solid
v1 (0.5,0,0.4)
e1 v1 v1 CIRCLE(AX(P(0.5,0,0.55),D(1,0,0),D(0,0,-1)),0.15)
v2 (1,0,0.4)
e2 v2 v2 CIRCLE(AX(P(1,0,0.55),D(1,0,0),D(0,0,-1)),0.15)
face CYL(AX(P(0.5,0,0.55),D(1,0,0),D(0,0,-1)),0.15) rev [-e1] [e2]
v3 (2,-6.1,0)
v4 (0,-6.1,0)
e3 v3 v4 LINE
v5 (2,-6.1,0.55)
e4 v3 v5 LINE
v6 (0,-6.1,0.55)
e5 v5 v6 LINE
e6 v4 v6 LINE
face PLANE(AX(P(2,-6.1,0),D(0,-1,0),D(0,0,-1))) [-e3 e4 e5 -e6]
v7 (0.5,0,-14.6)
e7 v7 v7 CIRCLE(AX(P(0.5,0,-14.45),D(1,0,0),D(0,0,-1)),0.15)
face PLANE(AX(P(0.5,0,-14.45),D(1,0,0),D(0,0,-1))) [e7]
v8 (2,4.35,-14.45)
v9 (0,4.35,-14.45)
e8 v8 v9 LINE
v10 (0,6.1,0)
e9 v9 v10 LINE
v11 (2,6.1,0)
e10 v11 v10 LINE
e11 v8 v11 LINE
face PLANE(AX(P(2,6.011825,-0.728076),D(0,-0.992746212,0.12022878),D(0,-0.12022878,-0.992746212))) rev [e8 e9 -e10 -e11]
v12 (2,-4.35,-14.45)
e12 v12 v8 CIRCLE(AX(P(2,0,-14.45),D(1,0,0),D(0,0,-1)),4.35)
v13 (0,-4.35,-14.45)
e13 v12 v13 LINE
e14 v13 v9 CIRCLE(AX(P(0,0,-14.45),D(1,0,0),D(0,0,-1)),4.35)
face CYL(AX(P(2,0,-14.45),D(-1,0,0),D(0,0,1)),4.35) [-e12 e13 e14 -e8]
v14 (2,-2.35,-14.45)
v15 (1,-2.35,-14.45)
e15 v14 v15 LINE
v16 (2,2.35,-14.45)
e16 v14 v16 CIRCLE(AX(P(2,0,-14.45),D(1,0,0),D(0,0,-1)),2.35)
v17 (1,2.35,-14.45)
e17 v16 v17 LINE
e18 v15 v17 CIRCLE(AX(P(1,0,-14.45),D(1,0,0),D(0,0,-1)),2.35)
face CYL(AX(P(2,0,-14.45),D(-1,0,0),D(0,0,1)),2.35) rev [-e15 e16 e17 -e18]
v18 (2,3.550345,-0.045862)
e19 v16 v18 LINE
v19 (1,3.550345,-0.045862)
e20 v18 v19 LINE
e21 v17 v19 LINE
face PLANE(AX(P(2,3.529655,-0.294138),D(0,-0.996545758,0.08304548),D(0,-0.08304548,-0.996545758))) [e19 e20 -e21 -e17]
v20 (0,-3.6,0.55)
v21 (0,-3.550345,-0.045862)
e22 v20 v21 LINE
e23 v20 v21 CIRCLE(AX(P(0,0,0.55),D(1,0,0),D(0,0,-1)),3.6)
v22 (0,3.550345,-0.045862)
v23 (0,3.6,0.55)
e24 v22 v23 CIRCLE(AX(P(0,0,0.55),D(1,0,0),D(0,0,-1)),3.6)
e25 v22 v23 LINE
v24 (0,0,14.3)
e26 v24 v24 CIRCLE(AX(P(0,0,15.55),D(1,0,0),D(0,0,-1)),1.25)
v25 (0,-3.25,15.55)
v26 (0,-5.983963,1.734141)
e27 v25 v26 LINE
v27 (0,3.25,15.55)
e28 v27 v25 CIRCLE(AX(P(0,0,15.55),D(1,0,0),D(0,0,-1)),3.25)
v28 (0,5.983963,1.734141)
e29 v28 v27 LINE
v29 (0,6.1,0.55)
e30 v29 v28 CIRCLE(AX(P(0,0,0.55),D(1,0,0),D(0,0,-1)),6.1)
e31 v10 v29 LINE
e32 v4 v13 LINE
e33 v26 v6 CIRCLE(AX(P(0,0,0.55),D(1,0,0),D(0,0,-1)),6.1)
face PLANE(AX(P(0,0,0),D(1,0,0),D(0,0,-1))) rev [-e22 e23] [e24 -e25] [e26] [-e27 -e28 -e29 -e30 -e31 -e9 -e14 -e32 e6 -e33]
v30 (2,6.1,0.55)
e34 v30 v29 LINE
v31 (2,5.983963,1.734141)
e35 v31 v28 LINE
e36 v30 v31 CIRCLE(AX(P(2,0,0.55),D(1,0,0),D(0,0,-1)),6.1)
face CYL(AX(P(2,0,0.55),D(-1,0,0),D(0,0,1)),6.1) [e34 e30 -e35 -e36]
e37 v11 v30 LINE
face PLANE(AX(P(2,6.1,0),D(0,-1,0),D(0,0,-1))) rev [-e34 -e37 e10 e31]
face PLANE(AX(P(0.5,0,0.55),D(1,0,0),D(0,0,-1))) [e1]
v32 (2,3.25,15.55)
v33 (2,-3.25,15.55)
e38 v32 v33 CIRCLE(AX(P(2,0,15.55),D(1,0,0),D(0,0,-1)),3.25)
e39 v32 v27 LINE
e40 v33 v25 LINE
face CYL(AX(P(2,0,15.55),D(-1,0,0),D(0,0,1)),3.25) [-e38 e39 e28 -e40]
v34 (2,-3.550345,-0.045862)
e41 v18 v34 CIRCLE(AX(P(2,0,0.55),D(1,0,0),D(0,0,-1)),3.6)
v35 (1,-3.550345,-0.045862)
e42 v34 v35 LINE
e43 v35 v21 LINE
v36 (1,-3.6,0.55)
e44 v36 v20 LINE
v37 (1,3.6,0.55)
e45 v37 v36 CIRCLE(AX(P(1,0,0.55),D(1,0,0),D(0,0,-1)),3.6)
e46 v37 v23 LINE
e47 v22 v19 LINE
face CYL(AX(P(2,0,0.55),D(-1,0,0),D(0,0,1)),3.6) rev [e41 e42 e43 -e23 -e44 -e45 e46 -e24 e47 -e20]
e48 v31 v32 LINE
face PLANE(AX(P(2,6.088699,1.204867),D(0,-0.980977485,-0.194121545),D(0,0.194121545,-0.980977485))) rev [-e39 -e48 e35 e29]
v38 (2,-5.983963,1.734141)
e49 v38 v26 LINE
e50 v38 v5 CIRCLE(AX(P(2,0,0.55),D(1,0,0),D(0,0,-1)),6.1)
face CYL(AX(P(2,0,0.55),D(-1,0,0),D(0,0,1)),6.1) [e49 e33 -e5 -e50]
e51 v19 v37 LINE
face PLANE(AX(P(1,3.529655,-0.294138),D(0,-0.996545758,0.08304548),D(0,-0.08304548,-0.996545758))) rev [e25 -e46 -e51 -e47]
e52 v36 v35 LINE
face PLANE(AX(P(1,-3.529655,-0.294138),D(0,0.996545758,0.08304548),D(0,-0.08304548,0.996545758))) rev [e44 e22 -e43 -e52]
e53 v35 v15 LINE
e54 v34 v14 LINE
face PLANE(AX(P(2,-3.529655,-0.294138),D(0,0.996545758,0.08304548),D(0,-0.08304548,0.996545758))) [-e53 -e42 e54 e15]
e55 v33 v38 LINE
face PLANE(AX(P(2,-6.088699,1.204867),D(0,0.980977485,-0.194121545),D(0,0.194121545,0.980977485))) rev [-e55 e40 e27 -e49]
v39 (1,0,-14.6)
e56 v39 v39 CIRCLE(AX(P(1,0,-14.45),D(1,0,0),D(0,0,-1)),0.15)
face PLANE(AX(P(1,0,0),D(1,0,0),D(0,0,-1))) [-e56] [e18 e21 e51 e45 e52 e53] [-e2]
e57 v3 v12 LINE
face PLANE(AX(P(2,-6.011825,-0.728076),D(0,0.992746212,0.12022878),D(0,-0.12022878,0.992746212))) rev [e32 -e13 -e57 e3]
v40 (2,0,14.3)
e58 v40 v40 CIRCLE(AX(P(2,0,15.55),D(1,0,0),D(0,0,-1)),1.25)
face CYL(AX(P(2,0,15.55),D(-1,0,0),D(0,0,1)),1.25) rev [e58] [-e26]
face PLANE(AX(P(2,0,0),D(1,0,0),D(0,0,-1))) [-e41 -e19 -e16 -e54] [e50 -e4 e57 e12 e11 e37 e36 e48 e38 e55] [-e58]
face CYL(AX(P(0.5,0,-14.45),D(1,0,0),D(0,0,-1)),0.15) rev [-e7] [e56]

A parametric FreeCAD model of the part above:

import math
import FreeCAD as App
import Part
import Sketcher

V = App.Vector
Q = App.Units.Quantity

doc = App.newDocument("Part")
body = doc.addObject("PartDesign::Body", "Body")

# Sketch on YZ plane
sketch1 = body.newObject("Sketcher::SketchObject", "Sketch")
sketch1.AttachmentSupport = (doc.getObject("YZ_Plane"), [""])
sketch1.MapMode = "FlatFace"
sketch1.addGeometry([
    Part.ArcOfCircle(Part.Circle(V(0, -14.5, 0), V(0, 0, 1), 4.3), math.radians(180), math.radians(270)),  # 0
    Part.ArcOfCircle(Part.Circle(V(0, -14.5, 0), V(0, 0, 1), 4.3), math.radians(-90), math.radians(0)),  # 1
    Part.LineSegment(V(4.3, -14.4, 0), V(6.1, 0, 0)),  # 2
    Part.LineSegment(V(6.1, 0, 0), V(6.1, 0.6, 0)),  # 3
    Part.ArcOfCircle(Part.Circle(V(0, 0.6, 0), V(0, 0, 1), 6.1), math.radians(0), math.radians(11.19)),  # 4
    Part.LineSegment(V(6, 1.7, 0), V(3.2, 15.6, 0)),  # 5
    Part.ArcOfCircle(Part.Circle(V(0, 15.6, 0), V(0, 0, 1), 3.2), math.radians(0), math.radians(90)),  # 6
    Part.ArcOfCircle(Part.Circle(V(0, 15.6, 0), V(0, 0, 1), 3.2), math.radians(90), math.radians(180)),  # 7
    Part.LineSegment(V(-3.2, 15.6, 0), V(-6, 1.7, 0)),  # 8
    Part.ArcOfCircle(Part.Circle(V(0, 0.6, 0), V(0, 0, 1), 6.1), math.radians(168.81), math.radians(180)),  # 9
    Part.LineSegment(V(-6.1, 0.6, 0), V(-6.1, 0, 0)),  # 10
    Part.LineSegment(V(-6.1, 0, 0), V(-4.3, -14.4, 0)),  # 11
    Part.ArcOfCircle(Part.Circle(V(0, 0.5, 0), V(0, 0, 1), 3.6), math.radians(-9.53), math.radians(0)),  # 12
    Part.LineSegment(V(3.6, 0, 0), V(2.4, -14.4, 0)),  # 13
    Part.ArcOfCircle(Part.Circle(V(0, -14.4, 0), V(0, 0, 1), 2.4), math.radians(180), math.radians(360)),  # 14
    Part.LineSegment(V(-2.4, -14.4, 0), V(-3.6, 0, 0)),  # 15
    Part.ArcOfCircle(Part.Circle(V(0, 0.5, 0), V(0, 0, 1), 3.6), math.radians(180), math.radians(189.53)),  # 16
    Part.ArcOfCircle(Part.Circle(V(0, 0.6, 0), V(0, 0, 1), 3.6), math.radians(0), math.radians(180)),  # 17
    Part.Circle(V(0, 15.6, 0), V(0, 0, 1), 1.2),  # 18
], False)
sketch1.addConstraint([
    Sketcher.Constraint("Tangent", 0, 2, 1, 1),
    Sketcher.Constraint("Coincident", 1, 2, 2, 1),
    Sketcher.Constraint("Coincident", 2, 2, 3, 1),
    Sketcher.Constraint("Tangent", 3, 2, 4, 1),
    Sketcher.Constraint("Tangent", 4, 2, 5, 1),
    Sketcher.Constraint("Coincident", 5, 2, 6, 1),
    Sketcher.Constraint("Tangent", 6, 2, 7, 1),
    Sketcher.Constraint("Coincident", 7, 2, 8, 1),
    Sketcher.Constraint("Tangent", 8, 2, 9, 1),
    Sketcher.Constraint("Tangent", 9, 2, 10, 1),
    Sketcher.Constraint("Coincident", 10, 2, 11, 1),
    Sketcher.Constraint("Coincident", 11, 2, 0, 1),
    Sketcher.Constraint("Coincident", 12, 1, 13, 1),
    Sketcher.Constraint("Coincident", 13, 2, 14, 2),
    Sketcher.Constraint("Coincident", 14, 1, 15, 1),
    Sketcher.Constraint("Coincident", 15, 2, 16, 2),
    Sketcher.Constraint("Tangent", 16, 1, 17, 2),
    Sketcher.Constraint("Tangent", 17, 1, 12, 2),
    Sketcher.Constraint("Vertical", 3),
    Sketcher.Constraint("Vertical", 10),
    Sketcher.Constraint("Coincident", 9, 3, 4, 3),
    Sketcher.Constraint("Coincident", 12, 3, 4, 3),
    Sketcher.Constraint("Coincident", 14, 3, 0, 3),
    Sketcher.Constraint("Coincident", 18, 3, 6, 3),
    Sketcher.Constraint("Equal", 0, 1),
    Sketcher.Constraint("Equal", 6, 7),
    Sketcher.Constraint("Equal", 4, 9),
    Sketcher.Constraint("Equal", 12, 16),
    Sketcher.Constraint("Equal", 16, 17),
    Sketcher.Constraint("Symmetric", 0, 2, 6, 2, -1, 1),
    Sketcher.Constraint("Symmetric", 2, 2, 10, 2, -1, 1),
    Sketcher.Constraint("Symmetric", 5, 2, 7, 2, -2),
    Sketcher.Constraint("Symmetric", 1, 2, 11, 2, -2),
    Sketcher.Constraint("PointOnObject", 0, 2, -2),
    Sketcher.Constraint("PointOnObject", 2, 2, -1),
    Sketcher.Constraint("Horizontal", 14, 3, 1, 2),
    Sketcher.Constraint("Horizontal", 18, 3, 5, 2),
    Sketcher.Constraint("Horizontal", 11, 2, 13, 2),
    Sketcher.Constraint("Horizontal", 13, 2, 14, 1),
    Sketcher.Constraint("Horizontal", 12, 1, 15, 2),
    Sketcher.Constraint("Horizontal", 9, 2, 16, 1),
    Sketcher.Constraint("Horizontal", 16, 1, 17, 1),
    Sketcher.Constraint("Diameter", 18, Q("2.5 mm")),
    Sketcher.Constraint("Radius", 4, Q("6.1 mm")),
    Sketcher.Constraint("Radius", 12, Q("3.6 mm")),
    Sketcher.Constraint("Radius", 0, Q("4.35 mm")),
    Sketcher.Constraint("Radius", 6, Q("3.25 mm")),
    Sketcher.Constraint("Radius", 14, Q("2.35 mm")),
    Sketcher.Constraint("DistanceY", 0, 3, 4, 3, Q("15 mm")),
    Sketcher.Constraint("DistanceY", 4, 3, 6, 3, Q("15 mm")),
    Sketcher.Constraint("Distance", 13, Q("14.454066 mm")),
])
pad1 = body.newObject("PartDesign::Pad", "Pad")
pad1.Profile = sketch1
pad1.Length = 2

# Sketch on YZ plane
sketch2 = body.newObject("Sketcher::SketchObject", "Sketch001")
sketch2.AttachmentSupport = (doc.getObject("YZ_Plane"), [""])
sketch2.MapMode = "FlatFace"
sketch2.addGeometry([
    Part.ArcOfCircle(Part.Circle(V(0, -14.4, 0), V(0, 0, 1), 2.4), math.radians(180), math.radians(360)),  # 0
    Part.LineSegment(V(2.4, -14.4, 0), V(3.6, 0, 0)),  # 1
    Part.LineSegment(V(3.6, 0, 0), V(3.6, 0.6, 0)),  # 2
    Part.ArcOfCircle(Part.Circle(V(0, 0.6, 0), V(0, 0, 1), 3.6), math.radians(0), math.radians(180)),  # 3
    Part.LineSegment(V(-3.6, 0.6, 0), V(-3.6, 0, 0)),  # 4
    Part.LineSegment(V(-3.6, 0, 0), V(-2.4, -14.4, 0)),  # 5
], False)
sketch2.addConstraint([
    Sketcher.Constraint("Coincident", 0, 2, 1, 1),
    Sketcher.Constraint("Coincident", 1, 2, 2, 1),
    Sketcher.Constraint("Coincident", 2, 2, 3, 1),
    Sketcher.Constraint("Coincident", 3, 2, 4, 1),
    Sketcher.Constraint("Coincident", 4, 2, 5, 1),
    Sketcher.Constraint("Coincident", 5, 2, 0, 1),
    Sketcher.Constraint("Symmetric", 2, 2, 3, 2, -2),
    Sketcher.Constraint("Symmetric", 1, 2, 4, 2, -2),
    Sketcher.Constraint("Symmetric", 0, 2, 5, 2, -2),
    Sketcher.Constraint("Parallel", 1, 2),
    Sketcher.Constraint("Horizontal", 3, 3, 2, 2),
    Sketcher.Constraint("Radius", 3, Q("3.6 mm")),
    Sketcher.Constraint("Radius", 0, Q("2.35 mm")),
    Sketcher.Constraint("DistanceY", 0, 3, 3, 3, Q("15 mm")),
    Sketcher.Constraint("DistanceY", 0, 2, 3, 3, Q("15 mm")),
    Sketcher.Constraint("DistanceY", 0, 3, -1, 1, Q("14.45 mm")),
    Sketcher.Constraint("DistanceX", 4, 2, 1, 2, Q("7.10069 mm")),
])
pad2 = body.newObject("PartDesign::Pad", "Pad001")
pad2.Profile = sketch2
pad2.Length = 1

# Sketch on YZ plane
sketch3 = body.newObject("Sketcher::SketchObject", "Sketch002")
sketch3.AttachmentSupport = (doc.getObject("YZ_Plane"), [""])
sketch3.MapMode = "FlatFace"
sketch3.AttachmentOffset = App.Placement(V(0, 0, 1), App.Rotation())
sketch3.addGeometry([
    Part.Circle(V(0, 0.55, 0), V(0, 0, 1), 0.15),
    Part.Circle(V(0, -14.45, 0), V(0, 0, 1), 0.15),
], False)
sketch3.addConstraint([
    Sketcher.Constraint("Equal", 0, 1),
    Sketcher.Constraint("PointOnObject", 0, 3, -2),
    Sketcher.Constraint("PointOnObject", 1, 3, -2),
    Sketcher.Constraint("Diameter", 0, Q("0.3 mm")),
    Sketcher.Constraint("DistanceY", 1, 3, 0, 3, Q("15 mm")),
    Sketcher.Constraint("DistanceY", -1, 1, 0, 3, Q("0.55 mm")),
])
pocket1 = body.newObject("PartDesign::Pocket", "Pocket")
pocket1.Profile = sketch3
pocket1.Length = 0.5

doc.recompute()
